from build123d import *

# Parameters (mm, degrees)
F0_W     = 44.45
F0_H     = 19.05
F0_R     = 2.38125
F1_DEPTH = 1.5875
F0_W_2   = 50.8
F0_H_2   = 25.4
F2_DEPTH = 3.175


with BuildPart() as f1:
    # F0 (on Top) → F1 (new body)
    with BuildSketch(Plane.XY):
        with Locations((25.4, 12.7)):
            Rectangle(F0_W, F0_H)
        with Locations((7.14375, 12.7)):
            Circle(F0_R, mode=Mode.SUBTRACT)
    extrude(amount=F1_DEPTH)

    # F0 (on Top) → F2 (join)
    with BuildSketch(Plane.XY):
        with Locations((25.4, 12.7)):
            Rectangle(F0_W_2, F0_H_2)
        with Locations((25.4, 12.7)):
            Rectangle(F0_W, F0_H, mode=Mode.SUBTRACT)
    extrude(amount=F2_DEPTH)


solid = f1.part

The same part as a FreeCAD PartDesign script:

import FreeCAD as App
import Part
import Sketcher
Q = App.Units.Quantity

doc = App.newDocument("Part")
params = doc.addObject("Spreadsheet::Sheet", "Params")
for row, (alias, value) in enumerate([
    ("sketch1_diameter", "0.1875 in"),
    ("sketch1_width", "1.75 in"),
    ("sketch1_height", "0.75 in"),
    ("pad1_length", "0.0625 in"),
    ("sketch2_width", "2 in"),
    ("sketch2_height", "1 in"),
    ("sketch2_width2", "1.75 in"),
    ("sketch2_height2", "0.75 in"),
    ("pad2_length", "0.125 in"),
], start=1):
    params.set(f"A{row}", alias)
    params.set(f"B{row}", "=" + value)
    params.setAlias(f"B{row}", alias)

body = doc.addObject("PartDesign::Body", "Body")

# Sketch on XY plane
sketch1 = body.newObject("Sketcher::SketchObject", "Sketch")
sketch1.AttachmentSupport = (doc.getObject("XY_Plane"), [""])
sketch1.MapMode = "FlatFace"
sketch1.addGeometry([
    Part.LineSegment(App.Vector(3.2, 22.2, 0), App.Vector(3.2, 3.2, 0)),  # 0
    Part.LineSegment(App.Vector(3.2, 3.2, 0), App.Vector(47.6, 3.2, 0)),  # 1
    Part.LineSegment(App.Vector(47.6, 3.2, 0), App.Vector(47.6, 22.2, 0)),  # 2
    Part.LineSegment(App.Vector(47.6, 22.2, 0), App.Vector(3.2, 22.2, 0)),  # 3
    Part.Circle(App.Vector(7.1, 12.7, 0), App.Vector(0, 0, 1), 2.4),  # 4
], False)
sketch1.addConstraint([
    Sketcher.Constraint("Coincident", 0, 2, 1, 1),
    Sketcher.Constraint("Coincident", 1, 2, 2, 1),
    Sketcher.Constraint("Coincident", 2, 2, 3, 1),
    Sketcher.Constraint("Coincident", 3, 2, 0, 1),
    Sketcher.Constraint("Vertical", 0),
    Sketcher.Constraint("Horizontal", 1),
    Sketcher.Constraint("Vertical", 2),
    Sketcher.Constraint("Horizontal", 3),
    Sketcher.Constraint("Diameter", 4, Q("0.1875 in")),
    Sketcher.Constraint("DistanceX", 1, 1, 1, 2, Q("1.75 in")),
    Sketcher.Constraint("DistanceY", 0, 2, 0, 1, Q("0.75 in")),
    Sketcher.Constraint("DistanceY", -1, 1, 4, 3, Q("0.5 in")),
    Sketcher.Constraint("DistanceX", -1, 1, 4, 3, Q("0.28125 in")),
    Sketcher.Constraint("DistanceX", -1, 1, 0, 2, Q("0.125 in")),
    Sketcher.Constraint("DistanceY", -1, 1, 0, 2, Q("0.125 in")),
])
sketch1.setExpression("Constraints[8]", "Params.sketch1_diameter")
sketch1.setExpression("Constraints[9]", "Params.sketch1_width")
sketch1.setExpression("Constraints[10]", "Params.sketch1_height")
pad1 = body.newObject("PartDesign::Pad", "Pad")
pad1.Profile = sketch1
pad1.setExpression("Length", "Params.pad1_length")

# Sketch on XY plane
sketch2 = body.newObject("Sketcher::SketchObject", "Sketch001")
sketch2.AttachmentSupport = (doc.getObject("XY_Plane"), [""])
sketch2.MapMode = "FlatFace"
sketch2.addGeometry([
    Part.LineSegment(App.Vector(0, 25, 0), App.Vector(0, 0, 0)),  # 0
    Part.LineSegment(App.Vector(0, 0, 0), App.Vector(51, 0, 0)),  # 1
    Part.LineSegment(App.Vector(51, 0, 0), App.Vector(51, 25, 0)),  # 2
    Part.LineSegment(App.Vector(51, 25, 0), App.Vector(0, 25, 0)),  # 3
    Part.LineSegment(App.Vector(48, 3, 0), App.Vector(3, 3, 0)),  # 4
    Part.LineSegment(App.Vector(3, 3, 0), App.Vector(3, 22, 0)),  # 5
    Part.LineSegment(App.Vector(3, 22, 0), App.Vector(48, 22, 0)),  # 6
    Part.LineSegment(App.Vector(48, 22, 0), App.Vector(48, 3, 0)),  # 7
], False)
sketch2.addConstraint([
    Sketcher.Constraint("Coincident", 0, 2, 1, 1),
    Sketcher.Constraint("Coincident", 1, 2, 2, 1),
    Sketcher.Constraint("Coincident", 2, 2, 3, 1),
    Sketcher.Constraint("Coincident", 3, 2, 0, 1),
    Sketcher.Constraint("Coincident", 4, 2, 5, 1),
    Sketcher.Constraint("Coincident", 5, 2, 6, 1),
    Sketcher.Constraint("Coincident", 6, 2, 7, 1),
    Sketcher.Constraint("Coincident", 7, 2, 4, 1),
    Sketcher.Constraint("Vertical", 0),
    Sketcher.Constraint("Horizontal", 1),
    Sketcher.Constraint("Vertical", 2),
    Sketcher.Constraint("Horizontal", 3),
    Sketcher.Constraint("Horizontal", 4),
    Sketcher.Constraint("Vertical", 5),
    Sketcher.Constraint("Horizontal", 6),
    Sketcher.Constraint("Vertical", 7),
    Sketcher.Constraint("Coincident", 0, 2, -1, 1),
    Sketcher.Constraint("DistanceX", 1, 1, 1, 2, Q("2 in")),
    Sketcher.Constraint("DistanceY", 0, 2, 0, 1, Q("1 in")),
    Sketcher.Constraint("DistanceX", 4, 2, 4, 1, Q("1.75 in")),
    Sketcher.Constraint("DistanceY", 5, 1, 5, 2, Q("0.75 in")),
    Sketcher.Constraint("DistanceX", -1, 1, 4, 2, Q("0.125 in")),
    Sketcher.Constraint("DistanceY", -1, 1, 4, 2, Q("0.125 in")),
])
sketch2.setExpression("Constraints[17]", "Params.sketch2_width")
sketch2.setExpression("Constraints[18]", "Params.sketch2_height")
sketch2.setExpression("Constraints[19]", "Params.sketch2_width2")
sketch2.setExpression("Constraints[20]", "Params.sketch2_height2")
pad2 = body.newObject("PartDesign::Pad", "Pad001")
pad2.Profile = sketch2
pad2.setExpression("Length", "Params.pad2_length")

doc.recompute()
